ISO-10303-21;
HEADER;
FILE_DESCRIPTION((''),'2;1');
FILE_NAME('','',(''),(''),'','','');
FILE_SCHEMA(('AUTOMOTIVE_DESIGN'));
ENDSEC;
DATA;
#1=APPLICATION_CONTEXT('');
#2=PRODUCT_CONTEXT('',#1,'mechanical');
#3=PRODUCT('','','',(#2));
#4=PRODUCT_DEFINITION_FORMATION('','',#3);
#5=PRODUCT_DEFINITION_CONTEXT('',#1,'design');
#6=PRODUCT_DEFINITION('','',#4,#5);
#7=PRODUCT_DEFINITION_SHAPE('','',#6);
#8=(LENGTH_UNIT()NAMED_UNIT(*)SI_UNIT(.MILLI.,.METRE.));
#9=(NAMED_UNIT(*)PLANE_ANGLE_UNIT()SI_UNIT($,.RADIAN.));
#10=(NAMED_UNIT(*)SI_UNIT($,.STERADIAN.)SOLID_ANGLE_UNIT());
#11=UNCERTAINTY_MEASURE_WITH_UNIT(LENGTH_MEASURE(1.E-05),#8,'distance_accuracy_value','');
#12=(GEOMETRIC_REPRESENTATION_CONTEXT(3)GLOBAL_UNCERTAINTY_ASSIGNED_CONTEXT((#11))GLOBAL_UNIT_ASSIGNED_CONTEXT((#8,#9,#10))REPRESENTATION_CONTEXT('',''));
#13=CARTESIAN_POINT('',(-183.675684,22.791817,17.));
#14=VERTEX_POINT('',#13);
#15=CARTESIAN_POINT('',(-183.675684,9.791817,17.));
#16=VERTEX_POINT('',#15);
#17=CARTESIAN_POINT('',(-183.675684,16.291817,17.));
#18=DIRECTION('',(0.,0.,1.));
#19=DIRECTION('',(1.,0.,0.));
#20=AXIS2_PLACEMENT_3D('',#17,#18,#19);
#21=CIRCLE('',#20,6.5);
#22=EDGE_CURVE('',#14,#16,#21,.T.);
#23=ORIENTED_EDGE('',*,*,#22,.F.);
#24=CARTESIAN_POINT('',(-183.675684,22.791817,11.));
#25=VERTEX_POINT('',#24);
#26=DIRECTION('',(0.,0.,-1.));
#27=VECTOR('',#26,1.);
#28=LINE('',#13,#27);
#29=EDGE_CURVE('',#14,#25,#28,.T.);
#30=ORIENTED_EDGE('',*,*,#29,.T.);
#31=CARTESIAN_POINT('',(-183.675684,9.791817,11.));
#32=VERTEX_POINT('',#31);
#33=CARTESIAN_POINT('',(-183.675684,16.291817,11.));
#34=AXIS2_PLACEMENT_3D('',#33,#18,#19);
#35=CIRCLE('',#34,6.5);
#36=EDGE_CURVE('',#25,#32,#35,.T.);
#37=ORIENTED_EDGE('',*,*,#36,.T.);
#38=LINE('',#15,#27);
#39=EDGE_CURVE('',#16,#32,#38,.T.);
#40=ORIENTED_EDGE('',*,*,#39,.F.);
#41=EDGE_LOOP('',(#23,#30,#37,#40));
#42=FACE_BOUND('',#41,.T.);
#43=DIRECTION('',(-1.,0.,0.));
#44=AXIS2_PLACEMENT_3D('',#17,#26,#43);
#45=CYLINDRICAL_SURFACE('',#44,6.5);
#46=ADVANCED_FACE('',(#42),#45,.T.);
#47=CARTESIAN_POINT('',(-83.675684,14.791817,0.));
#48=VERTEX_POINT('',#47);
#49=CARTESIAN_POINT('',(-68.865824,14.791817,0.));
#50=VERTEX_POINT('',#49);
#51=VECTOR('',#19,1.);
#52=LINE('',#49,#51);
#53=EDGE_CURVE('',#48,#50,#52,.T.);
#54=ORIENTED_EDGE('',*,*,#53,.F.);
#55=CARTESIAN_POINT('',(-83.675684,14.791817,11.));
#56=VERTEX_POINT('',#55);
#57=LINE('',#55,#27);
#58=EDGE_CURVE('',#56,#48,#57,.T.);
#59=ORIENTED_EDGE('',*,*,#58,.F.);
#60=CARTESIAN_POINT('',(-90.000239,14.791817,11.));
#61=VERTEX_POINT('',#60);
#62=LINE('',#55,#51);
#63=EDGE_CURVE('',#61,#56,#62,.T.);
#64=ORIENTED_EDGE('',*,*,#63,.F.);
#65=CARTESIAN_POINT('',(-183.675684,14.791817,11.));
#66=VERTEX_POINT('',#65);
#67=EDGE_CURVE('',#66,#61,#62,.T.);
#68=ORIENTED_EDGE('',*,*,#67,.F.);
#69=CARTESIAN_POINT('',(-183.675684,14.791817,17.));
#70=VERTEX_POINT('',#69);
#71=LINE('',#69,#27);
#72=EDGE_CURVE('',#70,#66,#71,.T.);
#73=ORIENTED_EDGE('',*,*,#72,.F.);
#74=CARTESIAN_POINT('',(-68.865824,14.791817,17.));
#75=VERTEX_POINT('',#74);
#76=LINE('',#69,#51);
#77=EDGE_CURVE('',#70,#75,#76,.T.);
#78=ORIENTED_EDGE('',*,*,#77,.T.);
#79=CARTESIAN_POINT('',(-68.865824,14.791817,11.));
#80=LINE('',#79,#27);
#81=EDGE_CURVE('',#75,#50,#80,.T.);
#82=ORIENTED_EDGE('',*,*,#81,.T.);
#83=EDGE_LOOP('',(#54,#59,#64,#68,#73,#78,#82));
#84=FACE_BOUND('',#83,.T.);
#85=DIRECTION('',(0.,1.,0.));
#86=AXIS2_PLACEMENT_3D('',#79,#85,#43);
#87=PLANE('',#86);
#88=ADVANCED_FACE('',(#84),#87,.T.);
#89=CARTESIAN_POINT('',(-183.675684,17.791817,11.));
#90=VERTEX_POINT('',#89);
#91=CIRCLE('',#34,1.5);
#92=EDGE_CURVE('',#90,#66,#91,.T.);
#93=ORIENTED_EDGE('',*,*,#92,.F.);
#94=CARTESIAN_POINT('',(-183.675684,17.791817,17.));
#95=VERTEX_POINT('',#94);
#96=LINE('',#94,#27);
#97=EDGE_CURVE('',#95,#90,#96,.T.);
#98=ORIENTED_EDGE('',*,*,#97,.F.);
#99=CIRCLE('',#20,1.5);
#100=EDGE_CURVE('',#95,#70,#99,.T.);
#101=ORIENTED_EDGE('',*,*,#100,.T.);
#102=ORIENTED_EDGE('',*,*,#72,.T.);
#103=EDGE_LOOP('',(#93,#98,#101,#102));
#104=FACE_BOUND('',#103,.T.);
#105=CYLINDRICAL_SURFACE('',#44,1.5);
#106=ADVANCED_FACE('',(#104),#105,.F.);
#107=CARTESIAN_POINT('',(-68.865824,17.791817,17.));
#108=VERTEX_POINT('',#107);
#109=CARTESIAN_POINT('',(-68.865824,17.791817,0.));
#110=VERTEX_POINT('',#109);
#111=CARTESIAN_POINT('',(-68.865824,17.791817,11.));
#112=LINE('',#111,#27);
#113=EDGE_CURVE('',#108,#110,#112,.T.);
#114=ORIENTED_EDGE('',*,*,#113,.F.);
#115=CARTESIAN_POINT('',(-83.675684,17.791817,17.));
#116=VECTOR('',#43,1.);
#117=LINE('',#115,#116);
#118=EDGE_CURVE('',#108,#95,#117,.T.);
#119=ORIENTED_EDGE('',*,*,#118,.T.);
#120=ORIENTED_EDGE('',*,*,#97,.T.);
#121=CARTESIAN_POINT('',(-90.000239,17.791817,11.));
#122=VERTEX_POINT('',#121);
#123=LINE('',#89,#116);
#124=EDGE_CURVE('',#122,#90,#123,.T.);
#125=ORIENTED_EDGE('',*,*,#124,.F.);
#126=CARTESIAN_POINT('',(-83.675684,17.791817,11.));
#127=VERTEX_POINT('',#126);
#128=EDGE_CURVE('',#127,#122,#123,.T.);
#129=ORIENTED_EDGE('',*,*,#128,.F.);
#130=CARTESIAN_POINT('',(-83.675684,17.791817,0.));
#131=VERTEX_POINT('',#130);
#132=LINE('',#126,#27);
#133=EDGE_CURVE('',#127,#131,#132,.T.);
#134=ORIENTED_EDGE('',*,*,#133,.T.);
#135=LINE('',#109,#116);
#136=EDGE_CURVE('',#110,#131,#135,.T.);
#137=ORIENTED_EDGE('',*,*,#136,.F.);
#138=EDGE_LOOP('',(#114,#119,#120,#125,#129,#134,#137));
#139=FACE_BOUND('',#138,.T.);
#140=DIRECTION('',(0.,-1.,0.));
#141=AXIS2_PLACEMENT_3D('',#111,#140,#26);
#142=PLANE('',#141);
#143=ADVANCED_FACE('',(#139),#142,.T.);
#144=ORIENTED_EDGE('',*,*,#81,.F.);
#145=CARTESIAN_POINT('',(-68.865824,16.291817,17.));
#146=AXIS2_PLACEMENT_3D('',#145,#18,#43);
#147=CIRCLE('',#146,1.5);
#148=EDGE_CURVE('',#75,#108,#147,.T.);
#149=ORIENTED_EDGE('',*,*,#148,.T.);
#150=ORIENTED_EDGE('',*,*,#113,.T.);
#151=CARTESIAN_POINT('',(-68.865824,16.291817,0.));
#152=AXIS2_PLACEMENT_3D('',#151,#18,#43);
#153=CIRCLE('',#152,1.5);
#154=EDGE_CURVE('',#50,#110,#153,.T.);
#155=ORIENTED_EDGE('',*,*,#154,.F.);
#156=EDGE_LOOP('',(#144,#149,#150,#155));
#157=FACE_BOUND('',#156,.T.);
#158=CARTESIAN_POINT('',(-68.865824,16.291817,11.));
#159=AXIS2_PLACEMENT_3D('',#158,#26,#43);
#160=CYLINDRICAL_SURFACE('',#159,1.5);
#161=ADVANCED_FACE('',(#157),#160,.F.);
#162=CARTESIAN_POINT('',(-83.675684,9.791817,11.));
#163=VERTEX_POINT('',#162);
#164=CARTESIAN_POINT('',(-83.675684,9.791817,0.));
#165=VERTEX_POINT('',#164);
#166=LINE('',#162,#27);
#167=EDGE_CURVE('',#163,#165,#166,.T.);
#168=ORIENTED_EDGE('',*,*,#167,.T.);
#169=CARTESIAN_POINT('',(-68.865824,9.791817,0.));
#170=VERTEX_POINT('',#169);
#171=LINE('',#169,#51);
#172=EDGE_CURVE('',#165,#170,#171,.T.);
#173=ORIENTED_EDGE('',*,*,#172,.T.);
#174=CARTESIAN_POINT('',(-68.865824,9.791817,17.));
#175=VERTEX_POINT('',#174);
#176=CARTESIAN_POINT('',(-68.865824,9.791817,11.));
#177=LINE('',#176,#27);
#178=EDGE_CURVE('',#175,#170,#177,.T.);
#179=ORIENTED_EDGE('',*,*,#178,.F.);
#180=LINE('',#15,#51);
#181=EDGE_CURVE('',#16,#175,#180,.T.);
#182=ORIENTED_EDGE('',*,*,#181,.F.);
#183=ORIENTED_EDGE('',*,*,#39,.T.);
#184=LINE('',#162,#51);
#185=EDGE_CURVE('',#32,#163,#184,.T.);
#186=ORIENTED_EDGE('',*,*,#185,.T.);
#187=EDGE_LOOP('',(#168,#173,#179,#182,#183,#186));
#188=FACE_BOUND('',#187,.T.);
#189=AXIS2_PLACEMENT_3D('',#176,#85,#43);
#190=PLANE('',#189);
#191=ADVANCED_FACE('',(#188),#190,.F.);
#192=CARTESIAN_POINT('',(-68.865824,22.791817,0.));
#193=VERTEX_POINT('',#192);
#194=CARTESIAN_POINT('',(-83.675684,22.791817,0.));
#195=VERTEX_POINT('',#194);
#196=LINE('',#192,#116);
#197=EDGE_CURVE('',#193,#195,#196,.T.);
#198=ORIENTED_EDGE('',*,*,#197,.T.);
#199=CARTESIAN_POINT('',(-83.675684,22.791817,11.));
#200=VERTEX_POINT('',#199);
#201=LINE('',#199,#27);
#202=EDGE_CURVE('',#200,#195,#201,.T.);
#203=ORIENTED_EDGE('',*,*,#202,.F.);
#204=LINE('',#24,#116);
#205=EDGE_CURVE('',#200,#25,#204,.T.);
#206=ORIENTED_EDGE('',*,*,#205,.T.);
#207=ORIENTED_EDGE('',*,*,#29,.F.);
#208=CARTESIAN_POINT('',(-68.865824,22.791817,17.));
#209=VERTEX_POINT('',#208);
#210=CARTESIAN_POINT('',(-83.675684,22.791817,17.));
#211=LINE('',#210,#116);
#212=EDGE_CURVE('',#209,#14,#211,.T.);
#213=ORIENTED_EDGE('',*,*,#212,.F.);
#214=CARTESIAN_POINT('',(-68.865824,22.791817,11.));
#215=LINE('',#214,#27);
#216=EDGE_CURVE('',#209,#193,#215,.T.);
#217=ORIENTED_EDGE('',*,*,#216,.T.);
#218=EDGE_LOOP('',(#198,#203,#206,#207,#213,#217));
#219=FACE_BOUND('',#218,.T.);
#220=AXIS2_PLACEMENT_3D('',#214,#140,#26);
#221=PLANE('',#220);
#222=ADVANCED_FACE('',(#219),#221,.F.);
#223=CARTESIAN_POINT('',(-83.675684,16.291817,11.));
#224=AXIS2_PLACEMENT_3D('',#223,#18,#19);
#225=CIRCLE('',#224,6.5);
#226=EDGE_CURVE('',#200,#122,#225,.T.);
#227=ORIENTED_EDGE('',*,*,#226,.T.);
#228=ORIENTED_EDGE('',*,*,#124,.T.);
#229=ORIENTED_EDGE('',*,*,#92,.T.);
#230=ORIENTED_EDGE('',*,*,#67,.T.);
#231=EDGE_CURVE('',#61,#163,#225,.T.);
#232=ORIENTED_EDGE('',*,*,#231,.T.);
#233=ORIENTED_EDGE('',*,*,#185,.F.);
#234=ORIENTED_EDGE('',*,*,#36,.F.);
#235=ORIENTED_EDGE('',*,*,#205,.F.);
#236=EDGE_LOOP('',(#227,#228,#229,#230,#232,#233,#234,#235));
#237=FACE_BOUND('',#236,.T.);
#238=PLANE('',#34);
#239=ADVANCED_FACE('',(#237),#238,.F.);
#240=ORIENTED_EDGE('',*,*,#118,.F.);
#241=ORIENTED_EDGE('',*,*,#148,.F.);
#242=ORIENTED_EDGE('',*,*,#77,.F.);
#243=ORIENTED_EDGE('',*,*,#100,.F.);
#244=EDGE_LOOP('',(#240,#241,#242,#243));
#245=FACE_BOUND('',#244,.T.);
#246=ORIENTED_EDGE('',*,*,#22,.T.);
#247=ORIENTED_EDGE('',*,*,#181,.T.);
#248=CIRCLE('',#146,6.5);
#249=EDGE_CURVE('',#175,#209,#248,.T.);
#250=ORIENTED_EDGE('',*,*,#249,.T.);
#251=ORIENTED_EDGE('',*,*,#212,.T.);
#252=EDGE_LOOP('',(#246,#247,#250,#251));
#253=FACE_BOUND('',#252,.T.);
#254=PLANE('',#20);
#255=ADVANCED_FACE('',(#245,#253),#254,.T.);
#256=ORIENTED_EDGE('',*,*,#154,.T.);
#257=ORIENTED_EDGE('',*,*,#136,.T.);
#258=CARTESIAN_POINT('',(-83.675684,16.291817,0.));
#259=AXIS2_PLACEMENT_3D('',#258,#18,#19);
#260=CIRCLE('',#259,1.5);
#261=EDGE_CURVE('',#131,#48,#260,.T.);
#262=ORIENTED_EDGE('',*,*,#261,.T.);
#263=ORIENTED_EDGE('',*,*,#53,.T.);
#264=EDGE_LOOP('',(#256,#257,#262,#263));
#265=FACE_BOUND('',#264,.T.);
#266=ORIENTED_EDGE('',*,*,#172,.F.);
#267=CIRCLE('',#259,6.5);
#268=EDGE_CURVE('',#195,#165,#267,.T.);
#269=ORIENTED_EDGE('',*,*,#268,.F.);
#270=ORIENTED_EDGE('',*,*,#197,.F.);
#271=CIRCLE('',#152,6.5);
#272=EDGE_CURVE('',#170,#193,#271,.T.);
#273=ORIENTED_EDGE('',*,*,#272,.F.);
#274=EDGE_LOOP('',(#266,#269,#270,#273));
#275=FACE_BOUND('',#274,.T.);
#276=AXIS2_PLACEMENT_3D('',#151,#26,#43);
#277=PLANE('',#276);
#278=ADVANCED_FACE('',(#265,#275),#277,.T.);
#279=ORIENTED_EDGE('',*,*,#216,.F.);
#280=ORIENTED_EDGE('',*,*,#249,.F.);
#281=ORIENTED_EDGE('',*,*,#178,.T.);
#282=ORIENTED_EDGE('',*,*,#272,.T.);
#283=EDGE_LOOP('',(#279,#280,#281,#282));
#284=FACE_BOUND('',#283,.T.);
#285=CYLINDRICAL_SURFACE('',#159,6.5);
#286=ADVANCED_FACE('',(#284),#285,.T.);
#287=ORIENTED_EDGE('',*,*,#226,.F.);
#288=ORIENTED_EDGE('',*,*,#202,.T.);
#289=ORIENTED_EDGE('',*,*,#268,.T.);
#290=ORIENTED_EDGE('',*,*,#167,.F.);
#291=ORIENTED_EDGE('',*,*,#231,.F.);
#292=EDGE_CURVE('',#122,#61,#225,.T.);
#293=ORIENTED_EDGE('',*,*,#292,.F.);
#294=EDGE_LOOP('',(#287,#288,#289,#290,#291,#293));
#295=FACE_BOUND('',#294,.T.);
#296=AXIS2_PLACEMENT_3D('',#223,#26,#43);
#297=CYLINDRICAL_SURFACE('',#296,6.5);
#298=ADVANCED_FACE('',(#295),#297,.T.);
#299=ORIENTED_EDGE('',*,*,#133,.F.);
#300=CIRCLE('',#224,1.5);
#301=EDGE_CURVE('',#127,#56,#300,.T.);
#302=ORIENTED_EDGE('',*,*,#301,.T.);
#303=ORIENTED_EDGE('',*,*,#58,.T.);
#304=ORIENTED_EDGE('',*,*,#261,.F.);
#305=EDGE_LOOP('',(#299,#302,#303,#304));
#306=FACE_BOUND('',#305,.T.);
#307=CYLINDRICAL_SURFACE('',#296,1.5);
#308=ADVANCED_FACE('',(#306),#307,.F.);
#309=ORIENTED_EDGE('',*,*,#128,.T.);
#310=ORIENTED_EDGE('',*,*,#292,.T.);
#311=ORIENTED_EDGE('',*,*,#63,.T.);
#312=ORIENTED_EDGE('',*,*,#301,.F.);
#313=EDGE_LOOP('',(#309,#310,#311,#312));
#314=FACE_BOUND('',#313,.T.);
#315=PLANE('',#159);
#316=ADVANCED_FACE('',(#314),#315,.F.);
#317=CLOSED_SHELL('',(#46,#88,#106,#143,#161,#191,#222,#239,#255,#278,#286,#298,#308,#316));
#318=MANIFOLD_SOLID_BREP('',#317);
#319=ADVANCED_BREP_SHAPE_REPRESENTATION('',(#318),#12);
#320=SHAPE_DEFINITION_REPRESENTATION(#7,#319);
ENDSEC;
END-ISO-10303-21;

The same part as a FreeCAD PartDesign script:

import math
import FreeCAD as App
import Part
import Sketcher

V = App.Vector

doc = App.newDocument("Part")
body = doc.addObject("PartDesign::Body", "Body")

# Sketch on XY plane
sketch1 = doc.addObject("Sketcher::SketchObject", "Sketch")
body.addObject(sketch1)
sketch1.AttachmentSupport = (doc.XY_Plane, [""])
sketch1.MapMode = "FlatFace"
sketch1.addGeometry([
    Part.LineSegment(V(-68.865824, 22.791817, 0), V(-83.675684, 22.791817, 0)),  # 0
    Part.ArcOfCircle(Part.Circle(V(-83.675684, 16.291817, 0), V(0, 0, 1), 6.5), math.radians(90), math.radians(270)),  # 1
    Part.LineSegment(V(-83.675684, 9.791817, 0), V(-68.865824, 9.791817, 0)),  # 2
    Part.ArcOfCircle(Part.Circle(V(-68.865824, 16.291817, 0), V(0, 0, 1), 6.5), math.radians(-90), math.radians(90)),  # 3
    Part.LineSegment(V(-83.675684, 17.791817, 0), V(-68.865824, 17.791817, 0)),  # 4
    Part.ArcOfCircle(Part.Circle(V(-68.865824, 16.291817, 0), V(0, 0, 1), 1.5), math.radians(-90), math.radians(90)),  # 5
    Part.LineSegment(V(-68.865824, 14.791817, 0), V(-83.675684, 14.791817, 0)),  # 6
    Part.ArcOfCircle(Part.Circle(V(-83.675684, 16.291817, 0), V(0, 0, 1), 1.5), math.radians(90), math.radians(270)),  # 7
], False)
sketch1.addConstraint([
    Sketcher.Constraint("Tangent", 0, 2, 1, 1),
    Sketcher.Constraint("Tangent", 1, 2, 2, 1),
    Sketcher.Constraint("Tangent", 2, 2, 3, 1),
    Sketcher.Constraint("Tangent", 3, 2, 0, 1),
    Sketcher.Constraint("Tangent", 4, 2, 5, 2),
    Sketcher.Constraint("Tangent", 5, 1, 6, 1),
    Sketcher.Constraint("Tangent", 6, 2, 7, 2),
    Sketcher.Constraint("Tangent", 7, 1, 4, 1),
    Sketcher.Constraint("Horizontal", 0),
    Sketcher.Constraint("Horizontal", 2),
    Sketcher.Constraint("Horizontal", 4),
    Sketcher.Constraint("Horizontal", 6),
    Sketcher.Constraint("Coincident", 5, 3, 3, 3),
    Sketcher.Constraint("Vertical", 7, 3, 0, 2),
    Sketcher.Constraint("Radius", 1, 6.5),
    Sketcher.Constraint("Radius", 5, 1.5),
    Sketcher.Constraint("DistanceX", 0, 2, 0, 1, 14.80986),
    Sketcher.Constraint("DistanceX", 1, 3, -1, 1, 83.675684),
    Sketcher.Constraint("DistanceY", -1, 1, 1, 3, 16.291817),
])
pad1 = doc.addObject("PartDesign::Pad", "Pad")
body.addObject(pad1)
pad1.Profile = sketch1
pad1.Length = 11

# Sketch on XY plane
sketch2 = doc.addObject("Sketcher::SketchObject", "Sketch001")
body.addObject(sketch2)
sketch2.AttachmentSupport = (doc.XY_Plane, [""])
sketch2.MapMode = "FlatFace"
sketch2.AttachmentOffset = App.Placement(V(0, 0, 11), App.Rotation())
sketch2.addGeometry([
    Part.LineSegment(V(-68.865824, 22.791817, 0), V(-183.675684, 22.791817, 0)),  # 0
    Part.ArcOfCircle(Part.Circle(V(-183.675684, 16.291817, 0), V(0, 0, 1), 6.5), math.radians(90), math.radians(270)),  # 1
    Part.LineSegment(V(-183.675684, 9.791817, 0), V(-68.865824, 9.791817, 0)),  # 2
    Part.ArcOfCircle(Part.Circle(V(-68.865824, 16.291817, 0), V(0, 0, 1), 6.5), math.radians(-90), math.radians(90)),  # 3
    Part.LineSegment(V(-183.675684, 17.791817, 0), V(-68.865824, 17.791817, 0)),  # 4
    Part.ArcOfCircle(Part.Circle(V(-68.865824, 16.291817, 0), V(0, 0, 1), 1.5), math.radians(-90), math.radians(90)),  # 5
    Part.LineSegment(V(-68.865824, 14.791817, 0), V(-183.675684, 14.791817, 0)),  # 6
    Part.ArcOfCircle(Part.Circle(V(-183.675684, 16.291817, 0), V(0, 0, 1), 1.5), math.radians(90), math.radians(270)),  # 7
], False)
sketch2.addConstraint([
    Sketcher.Constraint("Tangent", 0, 2, 1, 1),
    Sketcher.Constraint("Tangent", 1, 2, 2, 1),
    Sketcher.Constraint("Tangent", 2, 2, 3, 1),
    Sketcher.Constraint("Tangent", 3, 2, 0, 1),
    Sketcher.Constraint("Tangent", 4, 2, 5, 2),
    Sketcher.Constraint("Tangent", 5, 1, 6, 1),
    Sketcher.Constraint("Tangent", 6, 2, 7, 2),
    Sketcher.Constraint("Tangent", 7, 1, 4, 1),
    Sketcher.Constraint("Horizontal", 0),
    Sketcher.Constraint("Horizontal", 2),
    Sketcher.Constraint("Horizontal", 4),
    Sketcher.Constraint("Horizontal", 6),
    Sketcher.Constraint("Coincident", 5, 3, 3, 3),
    Sketcher.Constraint("Vertical", 7, 3, 0, 2),
    Sketcher.Constraint("Radius", 1, 6.5),
    Sketcher.Constraint("Radius", 5, 1.5),
    Sketcher.Constraint("DistanceX", 0, 2, 0, 1, 114.80986),
    Sketcher.Constraint("DistanceX", 1, 3, -1, 1, 183.675684),
    Sketcher.Constraint("DistanceY", -1, 1, 1, 3, 16.291817),
])
pad2 = doc.addObject("PartDesign::Pad", "Pad001")
body.addObject(pad2)
pad2.Profile = sketch2
pad2.Length = 6

doc.recompute()
